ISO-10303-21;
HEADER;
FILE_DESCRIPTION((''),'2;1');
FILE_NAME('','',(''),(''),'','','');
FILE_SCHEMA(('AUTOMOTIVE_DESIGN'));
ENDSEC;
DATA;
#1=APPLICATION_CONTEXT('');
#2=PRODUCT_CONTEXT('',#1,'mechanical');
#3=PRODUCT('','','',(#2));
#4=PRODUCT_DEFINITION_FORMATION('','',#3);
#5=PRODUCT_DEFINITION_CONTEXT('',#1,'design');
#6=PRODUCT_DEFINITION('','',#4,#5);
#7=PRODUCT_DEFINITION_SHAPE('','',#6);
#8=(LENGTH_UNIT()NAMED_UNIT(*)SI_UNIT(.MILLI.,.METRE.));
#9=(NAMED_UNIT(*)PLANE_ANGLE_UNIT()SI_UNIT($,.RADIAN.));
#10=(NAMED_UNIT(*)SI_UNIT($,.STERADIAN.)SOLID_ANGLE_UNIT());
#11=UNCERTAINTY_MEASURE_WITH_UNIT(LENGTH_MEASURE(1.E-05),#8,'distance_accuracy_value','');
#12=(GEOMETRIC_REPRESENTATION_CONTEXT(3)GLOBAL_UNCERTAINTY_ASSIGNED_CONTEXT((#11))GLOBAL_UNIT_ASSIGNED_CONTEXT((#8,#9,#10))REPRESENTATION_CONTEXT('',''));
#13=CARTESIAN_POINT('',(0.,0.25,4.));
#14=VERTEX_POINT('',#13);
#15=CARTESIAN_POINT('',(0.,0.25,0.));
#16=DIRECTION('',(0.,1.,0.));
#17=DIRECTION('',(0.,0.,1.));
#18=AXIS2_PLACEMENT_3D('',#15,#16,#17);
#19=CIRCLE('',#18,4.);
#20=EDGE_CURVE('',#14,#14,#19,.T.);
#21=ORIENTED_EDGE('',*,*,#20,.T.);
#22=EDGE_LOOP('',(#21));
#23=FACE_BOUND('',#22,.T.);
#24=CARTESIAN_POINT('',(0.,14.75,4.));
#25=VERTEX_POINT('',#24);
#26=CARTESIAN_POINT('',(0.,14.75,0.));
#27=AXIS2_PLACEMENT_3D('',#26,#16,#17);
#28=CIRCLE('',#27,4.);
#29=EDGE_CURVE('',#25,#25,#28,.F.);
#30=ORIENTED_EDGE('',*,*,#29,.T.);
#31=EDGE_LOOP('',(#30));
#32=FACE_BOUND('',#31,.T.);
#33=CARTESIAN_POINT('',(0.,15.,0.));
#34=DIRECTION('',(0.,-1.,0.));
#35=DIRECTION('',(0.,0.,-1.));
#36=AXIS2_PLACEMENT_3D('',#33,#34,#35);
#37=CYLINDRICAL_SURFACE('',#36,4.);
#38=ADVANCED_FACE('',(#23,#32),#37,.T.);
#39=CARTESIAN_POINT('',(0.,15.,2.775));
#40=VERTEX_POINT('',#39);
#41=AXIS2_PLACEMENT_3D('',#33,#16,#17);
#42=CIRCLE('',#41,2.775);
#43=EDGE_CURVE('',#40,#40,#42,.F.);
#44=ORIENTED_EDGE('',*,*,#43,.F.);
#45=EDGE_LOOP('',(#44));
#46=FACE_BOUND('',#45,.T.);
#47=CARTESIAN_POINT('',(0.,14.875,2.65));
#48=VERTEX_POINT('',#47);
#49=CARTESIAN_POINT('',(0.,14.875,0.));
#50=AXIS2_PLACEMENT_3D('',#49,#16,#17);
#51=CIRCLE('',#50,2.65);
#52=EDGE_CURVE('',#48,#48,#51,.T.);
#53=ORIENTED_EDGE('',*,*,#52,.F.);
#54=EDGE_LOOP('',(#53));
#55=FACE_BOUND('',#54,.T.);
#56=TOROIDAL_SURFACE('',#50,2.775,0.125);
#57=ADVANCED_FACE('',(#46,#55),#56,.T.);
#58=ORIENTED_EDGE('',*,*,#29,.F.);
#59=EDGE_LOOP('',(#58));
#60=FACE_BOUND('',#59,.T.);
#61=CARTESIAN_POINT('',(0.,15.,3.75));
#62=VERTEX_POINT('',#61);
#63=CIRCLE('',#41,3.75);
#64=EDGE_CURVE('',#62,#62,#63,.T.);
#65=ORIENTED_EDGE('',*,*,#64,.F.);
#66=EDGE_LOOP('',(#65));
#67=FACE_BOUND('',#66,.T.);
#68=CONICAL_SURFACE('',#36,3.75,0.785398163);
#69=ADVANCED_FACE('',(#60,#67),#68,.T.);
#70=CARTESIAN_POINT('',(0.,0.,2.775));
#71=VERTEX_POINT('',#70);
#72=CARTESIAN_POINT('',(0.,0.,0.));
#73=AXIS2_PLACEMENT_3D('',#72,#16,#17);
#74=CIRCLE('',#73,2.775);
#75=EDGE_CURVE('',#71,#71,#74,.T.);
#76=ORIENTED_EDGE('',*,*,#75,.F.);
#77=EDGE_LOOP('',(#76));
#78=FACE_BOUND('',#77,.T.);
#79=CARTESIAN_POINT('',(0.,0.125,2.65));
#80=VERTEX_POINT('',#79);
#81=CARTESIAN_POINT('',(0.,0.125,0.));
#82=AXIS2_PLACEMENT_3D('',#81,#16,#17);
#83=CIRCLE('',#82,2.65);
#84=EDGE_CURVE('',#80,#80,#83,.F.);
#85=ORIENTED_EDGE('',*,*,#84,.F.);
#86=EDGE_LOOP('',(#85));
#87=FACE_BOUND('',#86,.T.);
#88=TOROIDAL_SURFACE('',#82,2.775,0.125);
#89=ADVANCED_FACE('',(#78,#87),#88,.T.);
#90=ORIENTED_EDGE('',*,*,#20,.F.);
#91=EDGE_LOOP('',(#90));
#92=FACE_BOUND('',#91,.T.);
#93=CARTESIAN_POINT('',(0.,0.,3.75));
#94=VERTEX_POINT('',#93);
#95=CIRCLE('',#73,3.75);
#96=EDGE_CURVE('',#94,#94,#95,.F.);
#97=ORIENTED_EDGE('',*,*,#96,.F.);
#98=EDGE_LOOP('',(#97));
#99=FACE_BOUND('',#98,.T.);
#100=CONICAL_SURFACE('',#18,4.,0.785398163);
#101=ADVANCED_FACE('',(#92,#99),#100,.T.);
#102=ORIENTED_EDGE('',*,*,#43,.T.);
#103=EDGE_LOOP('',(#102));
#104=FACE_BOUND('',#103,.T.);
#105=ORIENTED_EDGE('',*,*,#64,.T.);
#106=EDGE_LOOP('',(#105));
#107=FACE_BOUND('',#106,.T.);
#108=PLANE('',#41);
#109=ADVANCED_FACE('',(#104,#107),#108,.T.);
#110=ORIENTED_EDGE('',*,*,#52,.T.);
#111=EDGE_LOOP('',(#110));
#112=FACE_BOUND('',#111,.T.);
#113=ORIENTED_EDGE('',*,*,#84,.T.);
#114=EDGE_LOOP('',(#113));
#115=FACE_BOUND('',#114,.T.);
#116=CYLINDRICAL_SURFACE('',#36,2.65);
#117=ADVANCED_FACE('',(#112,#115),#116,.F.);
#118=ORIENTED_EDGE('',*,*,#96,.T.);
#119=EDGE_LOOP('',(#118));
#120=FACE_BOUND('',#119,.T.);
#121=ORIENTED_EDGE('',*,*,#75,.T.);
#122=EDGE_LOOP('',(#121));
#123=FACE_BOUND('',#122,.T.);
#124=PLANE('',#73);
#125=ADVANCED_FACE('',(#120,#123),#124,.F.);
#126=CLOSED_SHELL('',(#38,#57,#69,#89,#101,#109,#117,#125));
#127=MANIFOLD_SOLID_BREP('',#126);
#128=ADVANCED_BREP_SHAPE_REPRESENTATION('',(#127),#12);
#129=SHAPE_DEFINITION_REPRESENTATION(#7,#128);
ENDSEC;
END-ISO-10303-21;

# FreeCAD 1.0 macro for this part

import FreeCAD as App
import Part
import Sketcher
from FreeCAD import Vector
Q = App.Units.Quantity


def edges_at(feature, points):
    """Names of the edges that pass closest to the given points."""
    edges = feature.Shape.Edges
    near = lambda p: min(range(len(edges)), key=lambda i: edges[i].distToShape(Part.Vertex(*p))[0])
    return sorted({f"Edge{near(p) + 1}" for p in points})

doc = App.newDocument("Part")
params = doc.addObject("Spreadsheet::Sheet", "Params")
for row, (alias, value) in enumerate([
    ("sketch1_diameter", "8 mm"),
    ("sketch1_diameter2", "5.3 mm"),
    ("pad1_length", "15 mm"),
    ("chamfer_size", "0.25 mm"),
    ("fillet_radius", "0.125 mm"),
], start=1):
    params.set(f"A{row}", alias)
    params.set(f"B{row}", "=" + value)
    params.setAlias(f"B{row}", alias)

body = doc.addObject("PartDesign::Body", "Body")

# Sketch on XZ plane
sketch1 = body.newObject("Sketcher::SketchObject", "Sketch")
sketch1.AttachmentSupport = (doc.getObject("XZ_Plane"), [""])
sketch1.MapMode = "FlatFace"
sketch1.addGeometry([
    Part.Circle(Vector(0, 0, 0), Vector(0, 0, 1), 4),
    Part.Circle(Vector(0, 0, 0), Vector(0, 0, 1), 2.6),
], False)
sketch1.addConstraint([
    Sketcher.Constraint("Coincident", 0, 3, -1, 1),
    Sketcher.Constraint("Coincident", 1, 3, -1, 1),
    Sketcher.Constraint("Diameter", 0, Q("8 mm")),
    Sketcher.Constraint("Diameter", 1, Q("5.3 mm")),
])
sketch1.setExpression("Constraints[2]", "Params.sketch1_diameter")
sketch1.setExpression("Constraints[3]", "Params.sketch1_diameter2")
pad1 = body.newObject("PartDesign::Pad", "Pad")
pad1.Profile = sketch1
pad1.setExpression("Length", "Params.pad1_length")
pad1.Reversed = True
doc.recompute()

chamfer = body.newObject("PartDesign::Chamfer", "Chamfer")
chamfer.Base = (pad1, edges_at(pad1, [(0, 0, -4), (0, 15, -4)]))
chamfer.setExpression("Size", "Params.chamfer_size")
doc.recompute()

fillet = body.newObject("PartDesign::Fillet", "Fillet")
fillet.Base = (chamfer, edges_at(chamfer, [(0, 0, -2.65), (0, 15, -2.65)]))
fillet.setExpression("Radius", "Params.fillet_radius")

doc.recompute()
